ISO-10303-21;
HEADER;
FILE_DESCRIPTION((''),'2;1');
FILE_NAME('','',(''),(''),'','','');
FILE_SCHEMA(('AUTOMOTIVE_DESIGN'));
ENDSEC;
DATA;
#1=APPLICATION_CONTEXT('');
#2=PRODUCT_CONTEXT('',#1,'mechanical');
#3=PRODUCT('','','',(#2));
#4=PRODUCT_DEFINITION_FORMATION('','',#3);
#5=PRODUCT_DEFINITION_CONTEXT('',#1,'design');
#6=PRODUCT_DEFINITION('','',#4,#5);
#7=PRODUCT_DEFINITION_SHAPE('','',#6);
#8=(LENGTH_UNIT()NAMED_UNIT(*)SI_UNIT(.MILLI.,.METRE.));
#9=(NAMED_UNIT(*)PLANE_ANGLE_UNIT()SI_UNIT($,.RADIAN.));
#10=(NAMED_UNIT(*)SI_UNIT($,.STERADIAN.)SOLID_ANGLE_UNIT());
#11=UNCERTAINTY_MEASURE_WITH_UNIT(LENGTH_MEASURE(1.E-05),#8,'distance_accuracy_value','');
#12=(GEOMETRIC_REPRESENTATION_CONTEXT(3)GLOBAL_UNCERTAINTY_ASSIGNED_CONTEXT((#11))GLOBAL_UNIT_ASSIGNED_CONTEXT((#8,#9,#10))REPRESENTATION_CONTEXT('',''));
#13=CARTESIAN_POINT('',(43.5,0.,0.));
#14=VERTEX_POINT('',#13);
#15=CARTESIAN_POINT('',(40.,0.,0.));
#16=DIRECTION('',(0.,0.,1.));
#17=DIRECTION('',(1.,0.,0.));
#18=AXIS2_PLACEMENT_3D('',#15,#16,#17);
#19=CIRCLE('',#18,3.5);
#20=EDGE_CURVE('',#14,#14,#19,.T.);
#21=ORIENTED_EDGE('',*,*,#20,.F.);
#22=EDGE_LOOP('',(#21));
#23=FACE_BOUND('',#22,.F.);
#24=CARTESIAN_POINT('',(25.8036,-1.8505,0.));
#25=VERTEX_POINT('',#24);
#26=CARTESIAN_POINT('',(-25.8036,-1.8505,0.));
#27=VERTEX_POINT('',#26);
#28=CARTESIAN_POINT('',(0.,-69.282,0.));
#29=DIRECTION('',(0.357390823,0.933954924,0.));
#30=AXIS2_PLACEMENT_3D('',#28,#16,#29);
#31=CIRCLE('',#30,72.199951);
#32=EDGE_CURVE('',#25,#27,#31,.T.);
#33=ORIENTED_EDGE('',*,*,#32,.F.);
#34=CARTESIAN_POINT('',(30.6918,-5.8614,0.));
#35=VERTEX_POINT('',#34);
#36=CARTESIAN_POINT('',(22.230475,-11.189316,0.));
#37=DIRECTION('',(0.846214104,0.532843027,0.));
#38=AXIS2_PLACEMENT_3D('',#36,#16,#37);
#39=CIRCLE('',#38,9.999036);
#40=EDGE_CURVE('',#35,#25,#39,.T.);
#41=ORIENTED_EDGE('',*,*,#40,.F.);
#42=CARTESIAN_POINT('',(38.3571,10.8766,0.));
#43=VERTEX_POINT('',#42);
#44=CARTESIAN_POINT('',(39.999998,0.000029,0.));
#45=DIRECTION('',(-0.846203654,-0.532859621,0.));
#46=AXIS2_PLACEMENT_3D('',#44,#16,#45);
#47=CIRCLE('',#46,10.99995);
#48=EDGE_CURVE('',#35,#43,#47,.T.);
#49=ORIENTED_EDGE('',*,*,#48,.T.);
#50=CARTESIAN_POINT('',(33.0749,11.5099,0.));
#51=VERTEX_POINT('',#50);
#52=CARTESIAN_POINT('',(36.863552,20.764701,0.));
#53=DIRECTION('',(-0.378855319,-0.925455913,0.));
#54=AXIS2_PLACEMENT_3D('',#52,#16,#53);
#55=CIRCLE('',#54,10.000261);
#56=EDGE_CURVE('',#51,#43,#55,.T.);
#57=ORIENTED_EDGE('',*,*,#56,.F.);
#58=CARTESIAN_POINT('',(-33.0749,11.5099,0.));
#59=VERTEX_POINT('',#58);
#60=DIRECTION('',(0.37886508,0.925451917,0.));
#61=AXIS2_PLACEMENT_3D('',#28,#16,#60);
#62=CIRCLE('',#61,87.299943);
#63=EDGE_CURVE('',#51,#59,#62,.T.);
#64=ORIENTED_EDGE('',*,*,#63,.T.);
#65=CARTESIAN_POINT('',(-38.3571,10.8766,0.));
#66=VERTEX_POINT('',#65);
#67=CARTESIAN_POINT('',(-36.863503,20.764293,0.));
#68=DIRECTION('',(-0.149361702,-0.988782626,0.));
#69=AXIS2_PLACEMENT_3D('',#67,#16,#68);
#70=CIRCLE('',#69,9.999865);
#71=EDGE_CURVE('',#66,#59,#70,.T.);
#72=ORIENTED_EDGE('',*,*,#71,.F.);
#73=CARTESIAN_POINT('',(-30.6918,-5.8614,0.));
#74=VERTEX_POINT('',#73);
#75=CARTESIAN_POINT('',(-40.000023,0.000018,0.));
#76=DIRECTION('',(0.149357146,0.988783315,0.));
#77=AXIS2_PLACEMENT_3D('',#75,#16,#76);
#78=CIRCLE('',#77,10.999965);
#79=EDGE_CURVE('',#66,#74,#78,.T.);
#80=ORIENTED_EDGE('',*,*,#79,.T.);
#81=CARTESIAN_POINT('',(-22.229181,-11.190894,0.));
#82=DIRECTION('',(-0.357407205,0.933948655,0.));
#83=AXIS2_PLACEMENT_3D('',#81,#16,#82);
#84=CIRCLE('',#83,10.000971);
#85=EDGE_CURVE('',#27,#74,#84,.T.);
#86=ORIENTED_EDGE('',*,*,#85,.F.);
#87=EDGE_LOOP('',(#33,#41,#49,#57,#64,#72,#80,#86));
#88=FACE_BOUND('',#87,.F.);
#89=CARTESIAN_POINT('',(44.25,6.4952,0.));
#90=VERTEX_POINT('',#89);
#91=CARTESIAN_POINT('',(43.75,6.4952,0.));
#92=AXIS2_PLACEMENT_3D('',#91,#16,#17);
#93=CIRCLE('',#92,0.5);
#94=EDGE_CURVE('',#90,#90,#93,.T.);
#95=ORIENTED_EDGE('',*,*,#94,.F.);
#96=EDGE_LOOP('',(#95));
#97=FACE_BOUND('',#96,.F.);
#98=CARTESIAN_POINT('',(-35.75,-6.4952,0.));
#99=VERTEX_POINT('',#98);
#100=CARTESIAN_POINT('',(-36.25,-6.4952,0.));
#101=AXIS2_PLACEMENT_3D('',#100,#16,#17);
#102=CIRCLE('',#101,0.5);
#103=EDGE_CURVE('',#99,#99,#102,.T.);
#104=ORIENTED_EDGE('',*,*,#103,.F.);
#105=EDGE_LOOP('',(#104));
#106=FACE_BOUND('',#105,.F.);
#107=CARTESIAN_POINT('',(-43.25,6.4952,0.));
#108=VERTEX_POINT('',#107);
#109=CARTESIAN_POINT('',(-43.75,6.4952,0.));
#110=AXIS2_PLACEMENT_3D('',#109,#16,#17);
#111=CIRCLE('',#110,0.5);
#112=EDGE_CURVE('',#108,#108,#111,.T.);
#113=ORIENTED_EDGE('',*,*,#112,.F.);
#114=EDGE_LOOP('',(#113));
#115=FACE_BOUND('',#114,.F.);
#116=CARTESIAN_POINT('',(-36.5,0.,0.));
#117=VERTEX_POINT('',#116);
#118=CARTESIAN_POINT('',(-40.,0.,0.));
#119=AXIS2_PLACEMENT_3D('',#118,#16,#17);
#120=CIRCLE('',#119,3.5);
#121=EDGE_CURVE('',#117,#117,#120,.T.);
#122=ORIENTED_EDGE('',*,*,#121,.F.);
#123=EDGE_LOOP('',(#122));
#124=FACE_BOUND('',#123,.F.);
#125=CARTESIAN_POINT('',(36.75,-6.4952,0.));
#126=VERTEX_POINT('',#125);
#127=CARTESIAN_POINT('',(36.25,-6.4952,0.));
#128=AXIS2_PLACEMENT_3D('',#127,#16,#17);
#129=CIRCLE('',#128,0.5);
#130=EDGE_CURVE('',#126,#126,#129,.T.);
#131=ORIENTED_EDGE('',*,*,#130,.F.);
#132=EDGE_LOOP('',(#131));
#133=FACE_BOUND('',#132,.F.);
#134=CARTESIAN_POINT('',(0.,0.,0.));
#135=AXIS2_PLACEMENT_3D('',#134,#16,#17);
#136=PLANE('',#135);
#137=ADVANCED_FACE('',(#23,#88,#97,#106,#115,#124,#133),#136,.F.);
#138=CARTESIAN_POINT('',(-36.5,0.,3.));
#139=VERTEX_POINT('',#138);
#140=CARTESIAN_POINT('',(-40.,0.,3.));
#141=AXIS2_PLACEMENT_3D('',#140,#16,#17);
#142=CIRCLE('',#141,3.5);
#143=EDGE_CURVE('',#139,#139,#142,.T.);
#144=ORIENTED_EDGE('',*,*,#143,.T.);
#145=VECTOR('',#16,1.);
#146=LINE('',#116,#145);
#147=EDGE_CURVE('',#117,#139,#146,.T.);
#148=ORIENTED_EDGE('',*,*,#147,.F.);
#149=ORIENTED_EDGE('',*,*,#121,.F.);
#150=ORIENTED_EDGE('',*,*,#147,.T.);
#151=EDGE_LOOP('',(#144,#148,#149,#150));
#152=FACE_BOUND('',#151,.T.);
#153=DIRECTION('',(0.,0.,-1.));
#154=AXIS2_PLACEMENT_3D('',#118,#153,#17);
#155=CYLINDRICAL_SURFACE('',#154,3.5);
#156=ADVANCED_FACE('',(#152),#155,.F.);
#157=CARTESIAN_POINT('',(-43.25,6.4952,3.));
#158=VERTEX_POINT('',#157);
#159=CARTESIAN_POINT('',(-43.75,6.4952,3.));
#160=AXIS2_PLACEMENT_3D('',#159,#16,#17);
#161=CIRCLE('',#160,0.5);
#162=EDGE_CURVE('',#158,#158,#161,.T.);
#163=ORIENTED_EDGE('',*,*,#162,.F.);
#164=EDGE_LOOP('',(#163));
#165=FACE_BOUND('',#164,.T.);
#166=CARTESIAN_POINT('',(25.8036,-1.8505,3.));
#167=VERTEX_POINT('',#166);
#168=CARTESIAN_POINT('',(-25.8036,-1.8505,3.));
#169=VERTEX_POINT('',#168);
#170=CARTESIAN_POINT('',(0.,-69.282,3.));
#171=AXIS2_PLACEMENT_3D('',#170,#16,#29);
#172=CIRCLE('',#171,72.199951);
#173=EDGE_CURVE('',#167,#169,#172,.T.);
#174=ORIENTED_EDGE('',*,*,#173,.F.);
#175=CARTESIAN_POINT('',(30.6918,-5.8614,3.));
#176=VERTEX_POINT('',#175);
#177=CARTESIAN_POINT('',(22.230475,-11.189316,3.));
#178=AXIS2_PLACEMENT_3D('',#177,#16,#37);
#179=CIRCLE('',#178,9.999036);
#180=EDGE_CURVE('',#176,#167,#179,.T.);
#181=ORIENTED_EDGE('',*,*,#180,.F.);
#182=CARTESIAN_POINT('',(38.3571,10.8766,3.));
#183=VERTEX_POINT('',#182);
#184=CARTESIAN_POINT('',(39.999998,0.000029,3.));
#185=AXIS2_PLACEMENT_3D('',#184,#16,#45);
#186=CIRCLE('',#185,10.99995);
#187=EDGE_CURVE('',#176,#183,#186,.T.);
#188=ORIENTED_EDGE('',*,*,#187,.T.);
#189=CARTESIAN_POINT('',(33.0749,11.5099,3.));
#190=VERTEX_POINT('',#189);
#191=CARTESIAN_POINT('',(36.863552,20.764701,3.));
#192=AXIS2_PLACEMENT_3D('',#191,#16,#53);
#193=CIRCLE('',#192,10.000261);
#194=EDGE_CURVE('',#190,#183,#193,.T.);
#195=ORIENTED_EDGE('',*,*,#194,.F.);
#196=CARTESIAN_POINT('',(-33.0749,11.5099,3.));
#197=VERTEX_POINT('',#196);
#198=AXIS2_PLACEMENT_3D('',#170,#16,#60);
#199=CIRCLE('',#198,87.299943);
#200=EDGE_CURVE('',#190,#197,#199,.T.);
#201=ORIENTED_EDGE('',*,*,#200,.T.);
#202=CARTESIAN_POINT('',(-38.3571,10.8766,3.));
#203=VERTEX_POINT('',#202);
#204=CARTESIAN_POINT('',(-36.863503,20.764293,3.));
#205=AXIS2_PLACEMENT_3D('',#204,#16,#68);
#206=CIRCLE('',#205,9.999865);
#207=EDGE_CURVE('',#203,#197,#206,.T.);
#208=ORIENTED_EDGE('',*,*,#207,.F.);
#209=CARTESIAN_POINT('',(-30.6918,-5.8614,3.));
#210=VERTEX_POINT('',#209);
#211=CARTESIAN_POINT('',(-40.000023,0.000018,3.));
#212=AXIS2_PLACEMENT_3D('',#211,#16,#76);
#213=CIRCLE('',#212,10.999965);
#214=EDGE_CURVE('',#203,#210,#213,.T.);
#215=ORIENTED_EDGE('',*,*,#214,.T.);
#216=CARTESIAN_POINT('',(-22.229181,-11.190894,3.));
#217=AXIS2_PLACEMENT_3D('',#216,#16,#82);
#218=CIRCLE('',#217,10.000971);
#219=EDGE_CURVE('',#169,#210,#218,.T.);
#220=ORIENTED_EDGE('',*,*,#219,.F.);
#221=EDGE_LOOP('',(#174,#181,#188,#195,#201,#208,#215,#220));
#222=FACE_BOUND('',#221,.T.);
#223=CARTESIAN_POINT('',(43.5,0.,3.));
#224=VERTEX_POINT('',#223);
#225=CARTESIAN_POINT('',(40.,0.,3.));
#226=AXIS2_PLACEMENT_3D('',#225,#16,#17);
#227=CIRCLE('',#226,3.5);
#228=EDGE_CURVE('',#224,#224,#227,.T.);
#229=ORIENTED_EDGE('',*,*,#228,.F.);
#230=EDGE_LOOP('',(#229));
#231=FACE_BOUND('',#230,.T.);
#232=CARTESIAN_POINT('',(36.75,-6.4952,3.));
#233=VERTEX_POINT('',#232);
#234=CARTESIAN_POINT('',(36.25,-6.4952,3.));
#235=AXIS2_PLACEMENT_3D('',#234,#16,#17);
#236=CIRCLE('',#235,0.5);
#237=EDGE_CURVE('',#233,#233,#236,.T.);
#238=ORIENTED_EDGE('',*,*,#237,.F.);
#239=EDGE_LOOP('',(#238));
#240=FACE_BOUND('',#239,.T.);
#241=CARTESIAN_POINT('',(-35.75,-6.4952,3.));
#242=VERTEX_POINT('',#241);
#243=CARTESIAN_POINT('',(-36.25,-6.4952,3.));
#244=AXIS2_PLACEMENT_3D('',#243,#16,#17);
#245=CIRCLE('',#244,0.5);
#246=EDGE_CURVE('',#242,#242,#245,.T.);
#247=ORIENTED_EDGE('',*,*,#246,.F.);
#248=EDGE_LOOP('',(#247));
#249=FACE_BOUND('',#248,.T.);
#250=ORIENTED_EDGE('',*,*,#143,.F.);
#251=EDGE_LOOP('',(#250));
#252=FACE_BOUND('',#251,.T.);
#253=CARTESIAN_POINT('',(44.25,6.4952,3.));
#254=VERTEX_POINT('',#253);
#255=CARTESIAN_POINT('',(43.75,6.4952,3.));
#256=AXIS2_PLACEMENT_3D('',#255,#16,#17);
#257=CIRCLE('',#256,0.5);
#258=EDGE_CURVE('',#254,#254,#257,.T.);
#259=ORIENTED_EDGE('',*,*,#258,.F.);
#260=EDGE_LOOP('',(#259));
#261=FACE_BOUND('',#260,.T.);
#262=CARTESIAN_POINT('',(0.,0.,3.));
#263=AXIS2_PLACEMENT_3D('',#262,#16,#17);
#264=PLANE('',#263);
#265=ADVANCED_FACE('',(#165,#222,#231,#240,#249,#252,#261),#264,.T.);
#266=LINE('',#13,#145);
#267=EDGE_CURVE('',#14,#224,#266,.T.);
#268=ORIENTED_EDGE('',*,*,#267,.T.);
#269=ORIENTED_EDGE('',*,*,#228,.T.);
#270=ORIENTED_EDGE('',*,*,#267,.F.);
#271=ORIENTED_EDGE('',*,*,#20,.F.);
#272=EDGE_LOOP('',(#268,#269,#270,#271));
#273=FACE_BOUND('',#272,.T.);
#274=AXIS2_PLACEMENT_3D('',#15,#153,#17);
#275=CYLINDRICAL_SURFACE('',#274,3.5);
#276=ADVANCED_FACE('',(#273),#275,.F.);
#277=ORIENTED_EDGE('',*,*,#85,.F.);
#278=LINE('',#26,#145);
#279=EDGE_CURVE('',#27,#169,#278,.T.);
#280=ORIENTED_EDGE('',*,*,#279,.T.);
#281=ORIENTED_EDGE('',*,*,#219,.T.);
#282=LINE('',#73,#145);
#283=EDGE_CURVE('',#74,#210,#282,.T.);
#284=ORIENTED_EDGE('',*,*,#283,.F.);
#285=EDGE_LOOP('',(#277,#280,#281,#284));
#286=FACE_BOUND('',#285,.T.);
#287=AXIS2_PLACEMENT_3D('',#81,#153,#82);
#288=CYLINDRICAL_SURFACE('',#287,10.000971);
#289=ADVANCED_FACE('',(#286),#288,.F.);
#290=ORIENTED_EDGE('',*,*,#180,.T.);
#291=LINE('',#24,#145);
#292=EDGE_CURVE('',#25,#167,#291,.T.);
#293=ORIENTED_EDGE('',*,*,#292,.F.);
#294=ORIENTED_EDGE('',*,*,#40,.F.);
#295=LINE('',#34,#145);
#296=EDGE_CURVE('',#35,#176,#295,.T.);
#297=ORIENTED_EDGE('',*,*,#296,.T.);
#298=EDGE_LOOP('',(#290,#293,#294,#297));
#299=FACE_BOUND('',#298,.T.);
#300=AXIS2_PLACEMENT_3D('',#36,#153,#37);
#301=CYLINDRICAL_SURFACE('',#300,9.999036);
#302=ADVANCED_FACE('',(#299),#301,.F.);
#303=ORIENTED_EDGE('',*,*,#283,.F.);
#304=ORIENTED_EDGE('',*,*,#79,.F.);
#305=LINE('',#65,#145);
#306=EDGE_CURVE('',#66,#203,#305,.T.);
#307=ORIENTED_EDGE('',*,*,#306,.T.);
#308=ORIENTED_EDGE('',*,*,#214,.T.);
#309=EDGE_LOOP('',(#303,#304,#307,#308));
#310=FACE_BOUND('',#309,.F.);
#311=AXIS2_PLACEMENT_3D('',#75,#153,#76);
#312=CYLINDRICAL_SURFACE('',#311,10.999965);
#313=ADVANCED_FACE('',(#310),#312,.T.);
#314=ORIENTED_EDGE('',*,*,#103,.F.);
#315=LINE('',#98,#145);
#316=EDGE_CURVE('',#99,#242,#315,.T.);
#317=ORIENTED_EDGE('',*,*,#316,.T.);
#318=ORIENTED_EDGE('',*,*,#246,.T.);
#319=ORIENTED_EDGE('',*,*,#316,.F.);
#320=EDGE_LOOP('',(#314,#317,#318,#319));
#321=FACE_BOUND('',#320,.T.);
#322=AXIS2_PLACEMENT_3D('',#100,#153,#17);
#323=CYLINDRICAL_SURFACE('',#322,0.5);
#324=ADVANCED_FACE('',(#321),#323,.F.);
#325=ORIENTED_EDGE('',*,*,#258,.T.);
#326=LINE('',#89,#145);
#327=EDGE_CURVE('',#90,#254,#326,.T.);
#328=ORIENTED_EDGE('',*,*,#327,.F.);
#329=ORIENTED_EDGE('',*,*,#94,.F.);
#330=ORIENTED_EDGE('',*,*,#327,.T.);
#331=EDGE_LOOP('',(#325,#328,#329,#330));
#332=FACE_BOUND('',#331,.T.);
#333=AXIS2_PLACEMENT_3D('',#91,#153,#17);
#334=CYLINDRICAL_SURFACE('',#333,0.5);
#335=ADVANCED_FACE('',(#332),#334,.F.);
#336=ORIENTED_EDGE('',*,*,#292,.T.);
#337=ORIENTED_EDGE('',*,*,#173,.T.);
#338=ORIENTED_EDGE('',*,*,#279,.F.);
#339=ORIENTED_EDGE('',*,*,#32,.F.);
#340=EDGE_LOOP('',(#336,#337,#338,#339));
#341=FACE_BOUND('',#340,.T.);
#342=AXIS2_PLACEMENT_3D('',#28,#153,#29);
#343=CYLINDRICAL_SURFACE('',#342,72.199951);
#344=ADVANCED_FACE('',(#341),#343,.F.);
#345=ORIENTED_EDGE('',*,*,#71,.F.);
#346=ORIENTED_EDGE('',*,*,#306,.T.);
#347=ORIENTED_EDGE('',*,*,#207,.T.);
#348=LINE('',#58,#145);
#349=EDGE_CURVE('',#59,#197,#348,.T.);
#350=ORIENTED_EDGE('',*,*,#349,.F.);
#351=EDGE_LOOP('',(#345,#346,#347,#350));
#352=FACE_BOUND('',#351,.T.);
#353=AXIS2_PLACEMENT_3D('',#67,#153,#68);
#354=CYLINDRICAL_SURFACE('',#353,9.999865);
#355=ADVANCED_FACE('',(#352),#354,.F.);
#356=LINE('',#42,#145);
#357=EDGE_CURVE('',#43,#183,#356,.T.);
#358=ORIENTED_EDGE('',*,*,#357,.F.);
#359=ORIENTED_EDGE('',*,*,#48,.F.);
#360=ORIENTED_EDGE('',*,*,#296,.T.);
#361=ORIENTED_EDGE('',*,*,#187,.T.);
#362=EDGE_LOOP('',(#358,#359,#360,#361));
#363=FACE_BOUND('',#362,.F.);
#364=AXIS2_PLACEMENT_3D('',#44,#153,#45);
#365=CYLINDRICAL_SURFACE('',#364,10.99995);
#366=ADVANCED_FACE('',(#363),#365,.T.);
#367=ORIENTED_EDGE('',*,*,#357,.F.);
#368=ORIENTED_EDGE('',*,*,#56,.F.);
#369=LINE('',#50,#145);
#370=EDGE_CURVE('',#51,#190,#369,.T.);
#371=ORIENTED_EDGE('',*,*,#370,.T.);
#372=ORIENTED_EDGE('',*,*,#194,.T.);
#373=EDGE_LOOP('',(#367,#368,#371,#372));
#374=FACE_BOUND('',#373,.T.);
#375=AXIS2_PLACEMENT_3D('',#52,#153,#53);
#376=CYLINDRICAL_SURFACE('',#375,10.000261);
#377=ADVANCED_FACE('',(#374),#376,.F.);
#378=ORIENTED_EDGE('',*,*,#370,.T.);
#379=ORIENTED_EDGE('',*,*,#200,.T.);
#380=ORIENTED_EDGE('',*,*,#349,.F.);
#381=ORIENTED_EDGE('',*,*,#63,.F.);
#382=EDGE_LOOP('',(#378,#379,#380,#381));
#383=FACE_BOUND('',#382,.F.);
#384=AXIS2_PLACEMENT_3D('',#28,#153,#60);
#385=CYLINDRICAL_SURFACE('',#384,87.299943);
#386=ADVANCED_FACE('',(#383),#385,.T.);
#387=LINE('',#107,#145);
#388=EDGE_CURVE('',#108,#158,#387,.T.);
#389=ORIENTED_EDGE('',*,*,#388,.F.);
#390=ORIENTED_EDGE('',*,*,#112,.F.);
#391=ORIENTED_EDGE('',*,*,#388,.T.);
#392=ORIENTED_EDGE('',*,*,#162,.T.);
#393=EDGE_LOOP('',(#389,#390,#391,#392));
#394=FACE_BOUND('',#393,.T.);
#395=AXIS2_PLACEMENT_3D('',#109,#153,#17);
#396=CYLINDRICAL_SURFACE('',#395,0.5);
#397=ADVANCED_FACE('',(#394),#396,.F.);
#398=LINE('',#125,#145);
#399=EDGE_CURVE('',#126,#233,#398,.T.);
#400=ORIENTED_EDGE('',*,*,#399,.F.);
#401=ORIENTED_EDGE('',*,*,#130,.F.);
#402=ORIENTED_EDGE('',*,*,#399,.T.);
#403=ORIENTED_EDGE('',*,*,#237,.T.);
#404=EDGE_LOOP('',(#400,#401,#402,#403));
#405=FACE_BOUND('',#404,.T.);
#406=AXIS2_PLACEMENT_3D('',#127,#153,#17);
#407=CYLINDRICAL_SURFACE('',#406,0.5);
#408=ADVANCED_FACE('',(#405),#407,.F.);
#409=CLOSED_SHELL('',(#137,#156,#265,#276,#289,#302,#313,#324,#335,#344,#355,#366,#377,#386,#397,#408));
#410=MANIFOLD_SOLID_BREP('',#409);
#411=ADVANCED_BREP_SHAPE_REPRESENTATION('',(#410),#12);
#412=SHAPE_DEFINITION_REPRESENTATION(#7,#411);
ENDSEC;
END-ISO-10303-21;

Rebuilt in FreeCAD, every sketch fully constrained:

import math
import FreeCAD as App
import Part
import Sketcher

V = App.Vector
Q = App.Units.Quantity

doc = App.newDocument("Part")
body = doc.addObject("PartDesign::Body", "Body")

# Sketch on XY plane
sketch1 = body.newObject("Sketcher::SketchObject", "Sketch")
sketch1.AttachmentSupport = (doc.getObject("XY_Plane"), [""])
sketch1.MapMode = "FlatFace"
sketch1.addGeometry([
    Part.ArcOfCircle(Part.Circle(V(-36.8635, 20.7645, 0), V(0, 0, 1), 10.00007), math.radians(-98.589779), math.radians(-67.737044)),  # 0
    Part.ArcOfCircle(Part.Circle(V(-40, 0, 0), V(0, 0, 1), 10.999979), math.radians(81.41046), math.radians(327.801262)),  # 1
    Part.ArcOfCircle(Part.Circle(V(-22.229181, -11.190894, 0), V(0, 0, 1), 10.000971), math.radians(110.941049), math.radians(147.798556)),  # 2
    Part.ArcOfCircle(Part.Circle(V(0, -69.282, 0), V(0, 0, 1), 72.199951), math.radians(69.059956), math.radians(110.940044)),  # 3
    Part.ArcOfCircle(Part.Circle(V(22.230475, -11.189316, 0), V(0, 0, 1), 9.999036), math.radians(32.197749), math.radians(69.062647)),  # 4
    Part.ArcOfCircle(Part.Circle(V(40, 0, 0), V(0, 0, 1), 10.999936), math.radians(-147.801262), math.radians(98.58954)),  # 5
    Part.ArcOfCircle(Part.Circle(V(36.8635, 20.7645, 0), V(0, 0, 1), 10.000056), math.radians(-112.262956), math.radians(-81.410221)),  # 6
    Part.ArcOfCircle(Part.Circle(V(0, -69.282, 0), V(0, 0, 1), 87.299943), math.radians(67.736599), math.radians(112.263401)),  # 7
    Part.Circle(V(-36.25, -6.4952, 0), V(0, 0, 1), 0.5),  # 8
    Part.Circle(V(-40, 0, 0), V(0, 0, 1), 3.5),  # 9
    Part.Circle(V(36.25, -6.4952, 0), V(0, 0, 1), 0.5),  # 10
    Part.Circle(V(40, 0, 0), V(0, 0, 1), 3.5),  # 11
    Part.Circle(V(-43.75, 6.4952, 0), V(0, 0, 1), 0.5),  # 12
    Part.Circle(V(43.75, 6.4952, 0), V(0, 0, 1), 0.5),  # 13
], False)
sketch1.addConstraint([
    Sketcher.Constraint("Coincident", 0, 1, 1, 1),
    Sketcher.Constraint("Coincident", 1, 2, 2, 2),
    Sketcher.Constraint("Coincident", 2, 1, 3, 2),
    Sketcher.Constraint("Coincident", 3, 1, 4, 2),
    Sketcher.Constraint("Coincident", 4, 1, 5, 1),
    Sketcher.Constraint("Coincident", 5, 2, 6, 2),
    Sketcher.Constraint("Coincident", 6, 1, 7, 1),
    Sketcher.Constraint("Coincident", 7, 2, 0, 2),
    Sketcher.Constraint("Coincident", 7, 3, 3, 3),
    Sketcher.Constraint("Coincident", 9, 3, 1, 3),
    Sketcher.Constraint("Coincident", 11, 3, 5, 3),
    Sketcher.Constraint("PointOnObject", 1, 3, -1),
    Sketcher.Constraint("PointOnObject", 3, 3, -2),
    Sketcher.Constraint("PointOnObject", 5, 3, -1),
    Sketcher.Constraint("Diameter", 8, Q("1 mm")),
    Sketcher.Constraint("Diameter", 9, Q("7 mm")),
    Sketcher.Constraint("Diameter", 10, Q("1 mm")),
    Sketcher.Constraint("Diameter", 11, Q("7 mm")),
    Sketcher.Constraint("Diameter", 12, Q("1 mm")),
    Sketcher.Constraint("Diameter", 13, Q("1 mm")),
    Sketcher.Constraint("Radius", 0, Q("10 mm")),
    Sketcher.Constraint("Radius", 1, Q("11 mm")),
    Sketcher.Constraint("Radius", 5, Q("11 mm")),
    Sketcher.Constraint("Radius", 6, Q("10 mm")),
    Sketcher.Constraint("Radius", 3, Q("72.2 mm")),
    Sketcher.Constraint("Radius", 7, Q("87.3 mm")),
    Sketcher.Constraint("DistanceX", 1, 3, -1, 1, Q("40 mm")),
    Sketcher.Constraint("DistanceX", -1, 1, 5, 3, Q("40 mm")),
    Sketcher.Constraint("DistanceX", 12, 3, 8, 3, Q("7.5 mm")),
    Sketcher.Constraint("DistanceX", 10, 3, 13, 3, Q("7.5 mm")),
    Sketcher.Constraint("Radius", 2, Q("10.001 mm")),
    Sketcher.Constraint("Radius", 4, Q("9.999 mm")),
    Sketcher.Constraint("DistanceX", 8, 3, -1, 1, Q("36.25 mm")),
    Sketcher.Constraint("DistanceX", -1, 1, 10, 3, Q("36.25 mm")),
    Sketcher.Constraint("DistanceY", -1, 1, 6, 1, Q("11.51 mm")),
    Sketcher.Constraint("DistanceY", -1, 1, 7, 2, Q("11.51 mm")),
    Sketcher.Constraint("DistanceY", 2, 3, -1, 1, Q("11.191 mm")),
    Sketcher.Constraint("DistanceX", 0, 1, -1, 1, Q("38.357 mm")),
    Sketcher.Constraint("DistanceX", -1, 1, 5, 2, Q("38.357 mm")),
    Sketcher.Constraint("DistanceY", 4, 3, 8, 3, Q("4.694 mm")),
    Sketcher.Constraint("DistanceY", 4, 3, 10, 3, Q("4.694 mm")),
    Sketcher.Constraint("DistanceY", 2, 3, 12, 3, Q("17.686 mm")),
    Sketcher.Constraint("DistanceY", 1, 2, 2, 1, Q("4.011 mm")),
    Sketcher.Constraint("DistanceY", 4, 1, 3, 1, Q("4.011 mm")),
    Sketcher.Constraint("DistanceY", 4, 3, 4, 1, Q("5.328 mm")),
    Sketcher.Constraint("DistanceY", -1, 1, 13, 3, Q("6.4952 mm")),
    Sketcher.Constraint("DistanceX", 1, 2, -1, 1, Q("30.6918 mm")),
])
pad1 = body.newObject("PartDesign::Pad", "Pad")
pad1.Profile = sketch1
pad1.Length = 3

doc.recompute()
